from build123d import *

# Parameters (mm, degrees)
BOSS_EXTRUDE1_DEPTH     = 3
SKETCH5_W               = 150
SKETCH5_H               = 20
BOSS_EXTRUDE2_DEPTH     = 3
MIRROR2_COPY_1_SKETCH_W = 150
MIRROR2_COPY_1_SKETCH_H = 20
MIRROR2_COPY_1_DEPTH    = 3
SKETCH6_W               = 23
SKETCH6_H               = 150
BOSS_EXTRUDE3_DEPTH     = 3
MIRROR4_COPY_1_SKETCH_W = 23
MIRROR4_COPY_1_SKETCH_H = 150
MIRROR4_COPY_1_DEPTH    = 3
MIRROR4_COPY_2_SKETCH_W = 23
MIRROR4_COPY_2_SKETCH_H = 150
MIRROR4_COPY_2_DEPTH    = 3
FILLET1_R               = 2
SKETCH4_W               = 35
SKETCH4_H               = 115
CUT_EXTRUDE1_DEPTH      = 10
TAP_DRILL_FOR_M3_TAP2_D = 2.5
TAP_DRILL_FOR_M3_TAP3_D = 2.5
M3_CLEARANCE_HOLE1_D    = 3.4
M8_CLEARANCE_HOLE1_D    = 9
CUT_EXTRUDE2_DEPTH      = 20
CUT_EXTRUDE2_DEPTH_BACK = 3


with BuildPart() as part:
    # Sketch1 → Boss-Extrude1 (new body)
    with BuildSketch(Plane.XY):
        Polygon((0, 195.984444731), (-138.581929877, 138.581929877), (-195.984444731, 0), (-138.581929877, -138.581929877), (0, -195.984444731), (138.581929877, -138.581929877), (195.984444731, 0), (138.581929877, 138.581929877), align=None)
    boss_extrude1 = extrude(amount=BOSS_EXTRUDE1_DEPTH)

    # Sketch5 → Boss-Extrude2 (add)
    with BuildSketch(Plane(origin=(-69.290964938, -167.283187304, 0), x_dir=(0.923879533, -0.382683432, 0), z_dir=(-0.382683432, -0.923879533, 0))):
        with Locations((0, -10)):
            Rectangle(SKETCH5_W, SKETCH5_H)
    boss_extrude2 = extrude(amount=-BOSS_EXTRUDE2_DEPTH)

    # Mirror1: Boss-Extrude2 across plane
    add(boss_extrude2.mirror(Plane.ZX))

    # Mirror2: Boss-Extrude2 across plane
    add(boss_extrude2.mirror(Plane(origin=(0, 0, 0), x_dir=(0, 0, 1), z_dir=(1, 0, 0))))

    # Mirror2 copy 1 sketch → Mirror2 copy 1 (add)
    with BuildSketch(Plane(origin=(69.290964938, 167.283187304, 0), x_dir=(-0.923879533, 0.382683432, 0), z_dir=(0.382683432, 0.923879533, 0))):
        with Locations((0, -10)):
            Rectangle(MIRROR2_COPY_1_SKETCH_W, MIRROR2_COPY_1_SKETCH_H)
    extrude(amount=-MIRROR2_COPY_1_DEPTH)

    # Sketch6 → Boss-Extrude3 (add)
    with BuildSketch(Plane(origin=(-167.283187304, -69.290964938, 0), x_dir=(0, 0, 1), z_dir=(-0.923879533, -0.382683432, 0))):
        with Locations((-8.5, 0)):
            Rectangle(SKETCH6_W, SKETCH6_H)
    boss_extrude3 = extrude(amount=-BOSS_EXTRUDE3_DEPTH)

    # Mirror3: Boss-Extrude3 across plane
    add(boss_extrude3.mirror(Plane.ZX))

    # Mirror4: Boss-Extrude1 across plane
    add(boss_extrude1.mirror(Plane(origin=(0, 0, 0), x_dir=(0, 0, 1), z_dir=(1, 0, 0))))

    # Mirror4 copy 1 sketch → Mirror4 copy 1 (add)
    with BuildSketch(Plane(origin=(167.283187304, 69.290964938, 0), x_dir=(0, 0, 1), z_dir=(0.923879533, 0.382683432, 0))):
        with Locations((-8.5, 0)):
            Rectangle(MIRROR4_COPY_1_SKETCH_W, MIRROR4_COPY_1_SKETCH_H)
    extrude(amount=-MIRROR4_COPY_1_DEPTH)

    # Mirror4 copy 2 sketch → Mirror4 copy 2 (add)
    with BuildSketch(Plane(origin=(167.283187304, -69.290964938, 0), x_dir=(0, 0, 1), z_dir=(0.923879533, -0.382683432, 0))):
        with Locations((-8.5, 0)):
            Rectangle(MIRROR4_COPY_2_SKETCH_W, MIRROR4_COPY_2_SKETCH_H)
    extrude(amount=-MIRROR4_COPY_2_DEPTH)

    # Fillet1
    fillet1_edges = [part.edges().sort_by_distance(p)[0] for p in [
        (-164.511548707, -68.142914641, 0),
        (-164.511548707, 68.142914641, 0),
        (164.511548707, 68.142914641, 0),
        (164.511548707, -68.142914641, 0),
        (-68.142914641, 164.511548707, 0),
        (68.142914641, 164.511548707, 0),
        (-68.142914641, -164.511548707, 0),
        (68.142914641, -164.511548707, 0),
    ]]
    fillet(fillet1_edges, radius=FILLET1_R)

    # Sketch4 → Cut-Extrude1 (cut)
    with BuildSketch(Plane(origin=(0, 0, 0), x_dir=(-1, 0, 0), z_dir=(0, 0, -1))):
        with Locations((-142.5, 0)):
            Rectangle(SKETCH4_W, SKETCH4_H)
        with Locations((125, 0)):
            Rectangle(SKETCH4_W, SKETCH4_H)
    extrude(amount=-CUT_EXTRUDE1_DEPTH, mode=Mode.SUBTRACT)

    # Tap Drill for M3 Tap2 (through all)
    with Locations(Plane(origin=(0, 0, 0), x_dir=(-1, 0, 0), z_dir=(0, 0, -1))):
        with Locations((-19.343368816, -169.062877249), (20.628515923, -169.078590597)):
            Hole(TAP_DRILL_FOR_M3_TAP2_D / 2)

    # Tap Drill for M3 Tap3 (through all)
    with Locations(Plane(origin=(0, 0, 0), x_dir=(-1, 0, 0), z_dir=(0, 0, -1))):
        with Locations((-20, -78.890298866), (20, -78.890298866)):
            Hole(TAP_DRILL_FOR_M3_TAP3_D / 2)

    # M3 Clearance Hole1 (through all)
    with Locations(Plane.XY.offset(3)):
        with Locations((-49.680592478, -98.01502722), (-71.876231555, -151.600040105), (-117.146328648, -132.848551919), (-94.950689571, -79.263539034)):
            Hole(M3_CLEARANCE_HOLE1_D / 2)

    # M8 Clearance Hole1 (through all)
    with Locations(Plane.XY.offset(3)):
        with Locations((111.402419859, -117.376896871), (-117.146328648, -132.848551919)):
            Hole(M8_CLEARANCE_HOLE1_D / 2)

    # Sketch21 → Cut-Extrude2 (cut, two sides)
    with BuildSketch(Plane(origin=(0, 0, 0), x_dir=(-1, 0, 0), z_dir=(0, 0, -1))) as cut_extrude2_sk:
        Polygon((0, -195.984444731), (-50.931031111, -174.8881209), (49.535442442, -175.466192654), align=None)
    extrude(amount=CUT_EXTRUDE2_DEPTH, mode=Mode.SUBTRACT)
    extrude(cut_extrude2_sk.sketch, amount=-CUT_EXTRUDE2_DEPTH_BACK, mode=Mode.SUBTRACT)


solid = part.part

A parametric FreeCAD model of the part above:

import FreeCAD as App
import Part
import Sketcher

V = App.Vector
Q = App.Units.Quantity


def edges_at(feature, points):
    """Names of the edges that pass closest to the given points."""
    edges = feature.Shape.Edges
    near = lambda p: min(range(len(edges)), key=lambda i: edges[i].distToShape(Part.Vertex(*p))[0])
    return sorted({f"Edge{near(p) + 1}" for p in points})

doc = App.newDocument("Part")
body = doc.addObject("PartDesign::Body", "Body")

sketch1 = body.newObject("Sketcher::SketchObject", "Sketch")
sketch1.AttachmentSupport = (doc.getObject("XY_Plane"), [""])
sketch1.MapMode = "FlatFace"
sketch1.addGeometry(Part.LineSegment(V(0, 196, 0), V(-139, 139, 0)), False)
sketch1.addGeometry(Part.LineSegment(V(-139, 139, 0), V(-196, 0, 0)), False)
sketch1.addGeometry(Part.LineSegment(V(-196, 0, 0), V(-139, -139, 0)), False)
sketch1.addGeometry(Part.LineSegment(V(-139, -139, 0), V(0, -196, 0)), False)
sketch1.addGeometry(Part.LineSegment(V(0, -196, 0), V(139, -139, 0)), False)
sketch1.addGeometry(Part.LineSegment(V(139, -139, 0), V(196, 0, 0)), False)
sketch1.addGeometry(Part.LineSegment(V(196, 0, 0), V(139, 139, 0)), False)
sketch1.addGeometry(Part.LineSegment(V(139, 139, 0), V(0, 196, 0)), False)
sketch1.addConstraint(Sketcher.Constraint("Coincident", 0, 2, 1, 1))
sketch1.addConstraint(Sketcher.Constraint("Coincident", 1, 2, 2, 1))
sketch1.addConstraint(Sketcher.Constraint("Coincident", 2, 2, 3, 1))
sketch1.addConstraint(Sketcher.Constraint("Coincident", 3, 2, 4, 1))
sketch1.addConstraint(Sketcher.Constraint("Coincident", 4, 2, 5, 1))
sketch1.addConstraint(Sketcher.Constraint("Coincident", 5, 2, 6, 1))
sketch1.addConstraint(Sketcher.Constraint("Coincident", 6, 2, 7, 1))
sketch1.addConstraint(Sketcher.Constraint("Coincident", 7, 2, 0, 1))
sketch1.addConstraint(Sketcher.Constraint("Symmetric", 0, 2, 4, 2, -1, 1))
sketch1.addConstraint(Sketcher.Constraint("Symmetric", 1, 2, 5, 2, -1, 1))
sketch1.addConstraint(Sketcher.Constraint("Symmetric", 2, 2, 6, 2, -1, 1))
sketch1.addConstraint(Sketcher.Constraint("Symmetric", 3, 2, 7, 2, -1, 1))
sketch1.addConstraint(Sketcher.Constraint("Symmetric", 2, 2, 4, 2, -2))
sketch1.addConstraint(Sketcher.Constraint("PointOnObject", 1, 2, -1))
sketch1.addConstraint(Sketcher.Constraint("PointOnObject", 3, 2, -2))
sketch1.addConstraint(Sketcher.Constraint("Perpendicular", 0, 2))
sketch1.addConstraint(Sketcher.Constraint("Equal", 0, 1))
sketch1.addConstraint(Sketcher.Constraint("Distance", 0, Q("150 mm")))
sketch1.addConstraint(Sketcher.Constraint("Angle", 0, Q("-157.5 deg")))
pad1 = body.newObject("PartDesign::Pad", "Pad")
pad1.Profile = sketch1
pad1.Length = 3

sketch2 = body.newObject("Sketcher::SketchObject", "Sketch001")
sketch2.Placement = App.Placement(V(-69.290965, -167.283187, 0), App.Rotation(V(0.923879533, -0.382683432, 0), V(0, 0, 1.000000001), V(-0.382683432, -0.923879533, 0), "ZXY"))
sketch2.addGeometry(Part.LineSegment(V(-75, 0, 0), V(-75, -20, 0)), False)
sketch2.addGeometry(Part.LineSegment(V(-75, -20, 0), V(75, -20, 0)), False)
sketch2.addGeometry(Part.LineSegment(V(75, -20, 0), V(75, 0, 0)), False)
sketch2.addGeometry(Part.LineSegment(V(75, 0, 0), V(-75, 0, 0)), False)
sketch2.addConstraint(Sketcher.Constraint("Coincident", 0, 2, 1, 1))
sketch2.addConstraint(Sketcher.Constraint("Coincident", 1, 2, 2, 1))
sketch2.addConstraint(Sketcher.Constraint("Coincident", 2, 2, 3, 1))
sketch2.addConstraint(Sketcher.Constraint("Coincident", 3, 2, 0, 1))
sketch2.addConstraint(Sketcher.Constraint("Vertical", 0))
sketch2.addConstraint(Sketcher.Constraint("Horizontal", 1))
sketch2.addConstraint(Sketcher.Constraint("Vertical", 2))
sketch2.addConstraint(Sketcher.Constraint("Horizontal", 3))
sketch2.addConstraint(Sketcher.Constraint("Symmetric", 2, 2, 3, 2, -1, 1))
sketch2.addConstraint(Sketcher.Constraint("DistanceX", 1, 1, 1, 2, Q("150 mm")))
sketch2.addConstraint(Sketcher.Constraint("DistanceY", 0, 2, 0, 1, Q("20 mm")))
pad2 = body.newObject("PartDesign::Pad", "Pad001")
pad2.Profile = sketch2
pad2.Length = 3
pad2.Reversed = True
doc.recompute()

mirrored = body.newObject("PartDesign::Mirrored", "Mirrored")
mirrored.Originals = [pad2]
mirrored.MirrorPlane = (doc.getObject("XZ_Plane"), [""])
body.Tip = mirrored
doc.recompute()

mirrored2 = body.newObject("PartDesign::Mirrored", "Mirrored001")
mirrored2.Originals = [pad2]
mirrored2.MirrorPlane = (doc.getObject("YZ_Plane"), [""])
body.Tip = mirrored2

sketch3 = body.newObject("Sketcher::SketchObject", "Sketch002")
sketch3.Placement = App.Placement(V(69.290965, 167.283187, 0), App.Rotation(V(-0.923879533, 0.382683432, 0), V(0, 0, 1.000000001), V(0.382683432, 0.923879533, 0), "ZXY"))
sketch3.addGeometry(Part.LineSegment(V(-75, 0, 0), V(-75, -20, 0)), False)
sketch3.addGeometry(Part.LineSegment(V(-75, -20, 0), V(75, -20, 0)), False)
sketch3.addGeometry(Part.LineSegment(V(75, -20, 0), V(75, 0, 0)), False)
sketch3.addGeometry(Part.LineSegment(V(75, 0, 0), V(-75, 0, 0)), False)
sketch3.addConstraint(Sketcher.Constraint("Coincident", 0, 2, 1, 1))
sketch3.addConstraint(Sketcher.Constraint("Coincident", 1, 2, 2, 1))
sketch3.addConstraint(Sketcher.Constraint("Coincident", 2, 2, 3, 1))
sketch3.addConstraint(Sketcher.Constraint("Coincident", 3, 2, 0, 1))
sketch3.addConstraint(Sketcher.Constraint("Vertical", 0))
sketch3.addConstraint(Sketcher.Constraint("Horizontal", 1))
sketch3.addConstraint(Sketcher.Constraint("Vertical", 2))
sketch3.addConstraint(Sketcher.Constraint("Horizontal", 3))
sketch3.addConstraint(Sketcher.Constraint("Symmetric", 2, 2, 3, 2, -1, 1))
sketch3.addConstraint(Sketcher.Constraint("DistanceX", 1, 1, 1, 2, Q("150 mm")))
sketch3.addConstraint(Sketcher.Constraint("DistanceY", 0, 2, 0, 1, Q("20 mm")))
pad3 = body.newObject("PartDesign::Pad", "Pad002")
pad3.Profile = sketch3
pad3.Length = 3
pad3.Reversed = True

sketch4 = body.newObject("Sketcher::SketchObject", "Sketch003")
sketch4.Placement = App.Placement(V(-167.283187, -69.290965, 0), App.Rotation(V(0, 0, 1), V(-0.382683432, 0.923879533, 0), V(-0.923879533, -0.382683432, 0), "ZXY"))
sketch4.addGeometry(Part.LineSegment(V(-20, 75, 0), V(-20, -75, 0)), False)
sketch4.addGeometry(Part.LineSegment(V(-20, -75, 0), V(3, -75, 0)), False)
sketch4.addGeometry(Part.LineSegment(V(3, -75, 0), V(3, 75, 0)), False)
sketch4.addGeometry(Part.LineSegment(V(3, 75, 0), V(-20, 75, 0)), False)
sketch4.addConstraint(Sketcher.Constraint("Coincident", 0, 2, 1, 1))
sketch4.addConstraint(Sketcher.Constraint("Coincident", 1, 2, 2, 1))
sketch4.addConstraint(Sketcher.Constraint("Coincident", 2, 2, 3, 1))
sketch4.addConstraint(Sketcher.Constraint("Coincident", 3, 2, 0, 1))
sketch4.addConstraint(Sketcher.Constraint("Vertical", 0))
sketch4.addConstraint(Sketcher.Constraint("Horizontal", 1))
sketch4.addConstraint(Sketcher.Constraint("Vertical", 2))
sketch4.addConstraint(Sketcher.Constraint("Horizontal", 3))
sketch4.addConstraint(Sketcher.Constraint("DistanceX", 1, 1, 1, 2, Q("23 mm")))
sketch4.addConstraint(Sketcher.Constraint("DistanceY", 0, 2, 0, 1, Q("150 mm")))
sketch4.addConstraint(Sketcher.Constraint("DistanceX", 0, 2, -1, 1, Q("20 mm")))
sketch4.addConstraint(Sketcher.Constraint("DistanceY", 0, 2, -1, 1, Q("75 mm")))
pad4 = body.newObject("PartDesign::Pad", "Pad003")
pad4.Profile = sketch4
pad4.Length = 3
pad4.Reversed = True
doc.recompute()

mirrored3 = body.newObject("PartDesign::Mirrored", "Mirrored002")
mirrored3.Originals = [pad4]
mirrored3.MirrorPlane = (doc.getObject("XZ_Plane"), [""])
body.Tip = mirrored3
doc.recompute()

mirrored4 = body.newObject("PartDesign::Mirrored", "Mirrored003")
mirrored4.Originals = [pad1]
mirrored4.MirrorPlane = (doc.getObject("YZ_Plane"), [""])
body.Tip = mirrored4

sketch5 = body.newObject("Sketcher::SketchObject", "Sketch004")
sketch5.Placement = App.Placement(V(167.283187, 69.290965, 0), App.Rotation(V(0, 0, 1), V(0.382683432, -0.923879533, 0), V(0.923879533, 0.382683432, 0), "ZXY"))
sketch5.addGeometry(Part.LineSegment(V(-20, 75, 0), V(-20, -75, 0)), False)
sketch5.addGeometry(Part.LineSegment(V(-20, -75, 0), V(3, -75, 0)), False)
sketch5.addGeometry(Part.LineSegment(V(3, -75, 0), V(3, 75, 0)), False)
sketch5.addGeometry(Part.LineSegment(V(3, 75, 0), V(-20, 75, 0)), False)
sketch5.addConstraint(Sketcher.Constraint("Coincident", 0, 2, 1, 1))
sketch5.addConstraint(Sketcher.Constraint("Coincident", 1, 2, 2, 1))
sketch5.addConstraint(Sketcher.Constraint("Coincident", 2, 2, 3, 1))
sketch5.addConstraint(Sketcher.Constraint("Coincident", 3, 2, 0, 1))
sketch5.addConstraint(Sketcher.Constraint("Vertical", 0))
sketch5.addConstraint(Sketcher.Constraint("Horizontal", 1))
sketch5.addConstraint(Sketcher.Constraint("Vertical", 2))
sketch5.addConstraint(Sketcher.Constraint("Horizontal", 3))
sketch5.addConstraint(Sketcher.Constraint("DistanceX", 1, 1, 1, 2, Q("23 mm")))
sketch5.addConstraint(Sketcher.Constraint("DistanceY", 0, 2, 0, 1, Q("150 mm")))
sketch5.addConstraint(Sketcher.Constraint("DistanceX", 0, 2, -1, 1, Q("20 mm")))
sketch5.addConstraint(Sketcher.Constraint("DistanceY", 0, 2, -1, 1, Q("75 mm")))
pad5 = body.newObject("PartDesign::Pad", "Pad004")
pad5.Profile = sketch5
pad5.Length = 3
pad5.Reversed = True

sketch6 = body.newObject("Sketcher::SketchObject", "Sketch005")
sketch6.Placement = App.Placement(V(167.283187, -69.290965, 0), App.Rotation(V(0, 0, 1), V(-0.382683432, -0.923879533, 0), V(0.923879533, -0.382683432, 0), "ZXY"))
sketch6.addGeometry(Part.LineSegment(V(-20, 75, 0), V(-20, -75, 0)), False)
sketch6.addGeometry(Part.LineSegment(V(-20, -75, 0), V(3, -75, 0)), False)
sketch6.addGeometry(Part.LineSegment(V(3, -75, 0), V(3, 75, 0)), False)
sketch6.addGeometry(Part.LineSegment(V(3, 75, 0), V(-20, 75, 0)), False)
sketch6.addConstraint(Sketcher.Constraint("Coincident", 0, 2, 1, 1))
sketch6.addConstraint(Sketcher.Constraint("Coincident", 1, 2, 2, 1))
sketch6.addConstraint(Sketcher.Constraint("Coincident", 2, 2, 3, 1))
sketch6.addConstraint(Sketcher.Constraint("Coincident", 3, 2, 0, 1))
sketch6.addConstraint(Sketcher.Constraint("Vertical", 0))
sketch6.addConstraint(Sketcher.Constraint("Horizontal", 1))
sketch6.addConstraint(Sketcher.Constraint("Vertical", 2))
sketch6.addConstraint(Sketcher.Constraint("Horizontal", 3))
sketch6.addConstraint(Sketcher.Constraint("DistanceX", 1, 1, 1, 2, Q("23 mm")))
sketch6.addConstraint(Sketcher.Constraint("DistanceY", 0, 2, 0, 1, Q("150 mm")))
sketch6.addConstraint(Sketcher.Constraint("DistanceX", 0, 2, -1, 1, Q("20 mm")))
sketch6.addConstraint(Sketcher.Constraint("DistanceY", 0, 2, -1, 1, Q("75 mm")))
pad6 = body.newObject("PartDesign::Pad", "Pad005")
pad6.Profile = sketch6
pad6.Length = 3
pad6.Reversed = True
doc.recompute()

fillet = body.newObject("PartDesign::Fillet", "Fillet")
fillet.Base = (pad6, edges_at(pad6, [
    (-164.512, -68.143, 0),
    (-164.512, 68.143, 0),
    (164.512, 68.143, 0),
    (164.512, -68.143, 0),
    (-68.143, 164.512, 0),
    (68.143, 164.512, 0),
    (-68.143, -164.512, 0),
    (68.143, -164.512, 0),
]))
fillet.Radius = 2

sketch7 = body.newObject("Sketcher::SketchObject", "Sketch006")
sketch7.AttachmentSupport = (doc.getObject("XY_Plane"), [""])
sketch7.MapMode = "FlatFace"
sketch7.addGeometry(Part.LineSegment(V(160, 58, 0), V(160, -58, 0)), False)
sketch7.addGeometry(Part.LineSegment(V(160, -58, 0), V(125, -58, 0)), False)
sketch7.addGeometry(Part.LineSegment(V(125, -58, 0), V(125, 58, 0)), False)
sketch7.addGeometry(Part.LineSegment(V(125, 58, 0), V(160, 58, 0)), False)
sketch7.addGeometry(Part.LineSegment(V(-108, 58, 0), V(-108, -58, 0)), False)
sketch7.addGeometry(Part.LineSegment(V(-108, -58, 0), V(-142, -58, 0)), False)
sketch7.addGeometry(Part.LineSegment(V(-142, -58, 0), V(-142, 58, 0)), False)
sketch7.addGeometry(Part.LineSegment(V(-142, 58, 0), V(-108, 58, 0)), False)
sketch7.addConstraint(Sketcher.Constraint("Coincident", 0, 2, 1, 1))
sketch7.addConstraint(Sketcher.Constraint("Coincident", 1, 2, 2, 1))
sketch7.addConstraint(Sketcher.Constraint("Coincident", 2, 2, 3, 1))
sketch7.addConstraint(Sketcher.Constraint("Coincident", 3, 2, 0, 1))
sketch7.addConstraint(Sketcher.Constraint("Coincident", 4, 2, 5, 1))
sketch7.addConstraint(Sketcher.Constraint("Coincident", 5, 2, 6, 1))
sketch7.addConstraint(Sketcher.Constraint("Coincident", 6, 2, 7, 1))
sketch7.addConstraint(Sketcher.Constraint("Coincident", 7, 2, 4, 1))
sketch7.addConstraint(Sketcher.Constraint("Vertical", 0))
sketch7.addConstraint(Sketcher.Constraint("Horizontal", 1))
sketch7.addConstraint(Sketcher.Constraint("Vertical", 2))
sketch7.addConstraint(Sketcher.Constraint("Horizontal", 3))
sketch7.addConstraint(Sketcher.Constraint("Vertical", 4))
sketch7.addConstraint(Sketcher.Constraint("Horizontal", 5))
sketch7.addConstraint(Sketcher.Constraint("Vertical", 6))
sketch7.addConstraint(Sketcher.Constraint("Horizontal", 7))
sketch7.addConstraint(Sketcher.Constraint("Horizontal", 1, 2, 4, 2))
sketch7.addConstraint(Sketcher.Constraint("Horizontal", 3, 2, 6, 2))
sketch7.addConstraint(Sketcher.Constraint("Equal", 3, 5))
sketch7.addConstraint(Sketcher.Constraint("DistanceX", 1, 2, 1, 1, Q("35 mm")))
sketch7.addConstraint(Sketcher.Constraint("DistanceY", 0, 2, 0, 1, Q("115 mm")))
sketch7.addConstraint(Sketcher.Constraint("DistanceX", -1, 1, 0, 2, Q("160 mm")))
sketch7.addConstraint(Sketcher.Constraint("DistanceY", 0, 2, -1, 1, Q("57.5 mm")))
sketch7.addConstraint(Sketcher.Constraint("DistanceX", 4, 2, -1, 1, Q("107.5 mm")))
pocket1 = body.newObject("PartDesign::Pocket", "Pocket")
pocket1.Profile = sketch7
pocket1.Length = 10
pocket1.Reversed = True

sketch8 = body.newObject("Sketcher::SketchObject", "Sketch007")
sketch8.AttachmentSupport = (doc.getObject("XY_Plane"), [""])
sketch8.MapMode = "FlatFace"
sketch8.addGeometry(Part.Circle(V(19.3, -169.1, 0), V(0, 0, 1), 1.2), False)
sketch8.addGeometry(Part.Circle(V(-20.6, -169.1, 0), V(0, 0, 1), 1.2), False)
sketch8.addConstraint(Sketcher.Constraint("Equal", 0, 1))
sketch8.addConstraint(Sketcher.Constraint("Diameter", 0, Q("2.5 mm")))
sketch8.addConstraint(Sketcher.Constraint("DistanceX", -1, 1, 0, 3, Q("19.343369 mm")))
sketch8.addConstraint(Sketcher.Constraint("DistanceY", 1, 3, -1, 1, Q("169.078591 mm")))
sketch8.addConstraint(Sketcher.Constraint("DistanceY", 0, 3, -1, 1, Q("169.062877 mm")))
sketch8.addConstraint(Sketcher.Constraint("DistanceX", 1, 3, -1, 1, Q("20.628516 mm")))
doc.recompute()
hole = body.newObject("PartDesign::Hole", "Hole")
hole.Profile = sketch8
hole.ThreadType = "None"
hole.Diameter = 2.5
hole.DepthType = "ThroughAll"
hole.Reversed = True

sketch9 = body.newObject("Sketcher::SketchObject", "Sketch008")
sketch9.AttachmentSupport = (doc.getObject("XY_Plane"), [""])
sketch9.MapMode = "FlatFace"
sketch9.addGeometry(Part.Circle(V(20, -78.9, 0), V(0, 0, 1), 1.2), False)
sketch9.addGeometry(Part.Circle(V(-20, -78.9, 0), V(0, 0, 1), 1.2), False)
sketch9.addConstraint(Sketcher.Constraint("Equal", 0, 1))
sketch9.addConstraint(Sketcher.Constraint("Symmetric", 0, 3, 1, 3, -2))
sketch9.addConstraint(Sketcher.Constraint("Diameter", 0, Q("2.5 mm")))
sketch9.addConstraint(Sketcher.Constraint("DistanceX", -1, 1, 0, 3, Q("20 mm")))
sketch9.addConstraint(Sketcher.Constraint("DistanceY", 0, 3, -1, 1, Q("78.890299 mm")))
doc.recompute()
hole2 = body.newObject("PartDesign::Hole", "Hole001")
hole2.Profile = sketch9
hole2.ThreadType = "None"
hole2.Diameter = 2.5
hole2.DepthType = "ThroughAll"
hole2.Reversed = True

sketch10 = body.newObject("Sketcher::SketchObject", "Sketch009")
sketch10.AttachmentSupport = (doc.getObject("XY_Plane"), [""])
sketch10.MapMode = "FlatFace"
sketch10.AttachmentOffset = App.Placement(V(0, 0, 3), App.Rotation())
sketch10.addGeometry(Part.Circle(V(-49.7, -98, 0), V(0, 0, 1), 1.7), False)
sketch10.addGeometry(Part.Circle(V(-71.9, -151.6, 0), V(0, 0, 1), 1.7), False)
sketch10.addGeometry(Part.Circle(V(-117.1, -132.8, 0), V(0, 0, 1), 1.7), False)
sketch10.addGeometry(Part.Circle(V(-95, -79.3, 0), V(0, 0, 1), 1.7), False)
sketch10.addConstraint(Sketcher.Constraint("Equal", 0, 1))
sketch10.addConstraint(Sketcher.Constraint("Equal", 1, 2))
sketch10.addConstraint(Sketcher.Constraint("Equal", 2, 3))
sketch10.addConstraint(Sketcher.Constraint("Diameter", 0, Q("3.4 mm")))
sketch10.addConstraint(Sketcher.Constraint("DistanceY", 1, 3, 3, 3, Q("72.336501 mm")))
sketch10.addConstraint(Sketcher.Constraint("DistanceX", 1, 3, -1, 1, Q("71.876232 mm")))
sketch10.addConstraint(Sketcher.Constraint("DistanceY", 1, 3, -1, 1, Q("151.60004 mm")))
sketch10.addConstraint(Sketcher.Constraint("DistanceX", 2, 3, -1, 1, Q("117.146329 mm")))
sketch10.addConstraint(Sketcher.Constraint("DistanceY", 2, 3, -1, 1, Q("132.848552 mm")))
sketch10.addConstraint(Sketcher.Constraint("DistanceX", 3, 3, -1, 1, Q("94.95069 mm")))
sketch10.addConstraint(Sketcher.Constraint("DistanceX", 1, 3, 0, 3, Q("22.195639 mm")))
sketch10.addConstraint(Sketcher.Constraint("DistanceY", 0, 3, 3, 3, Q("18.751488 mm")))
doc.recompute()
hole3 = body.newObject("PartDesign::Hole", "Hole002")
hole3.Profile = sketch10
hole3.ThreadType = "None"
hole3.Diameter = 3.4
hole3.DepthType = "ThroughAll"

sketch11 = body.newObject("Sketcher::SketchObject", "Sketch010")
sketch11.AttachmentSupport = (doc.getObject("XY_Plane"), [""])
sketch11.MapMode = "FlatFace"
sketch11.AttachmentOffset = App.Placement(V(0, 0, 3), App.Rotation())
sketch11.addGeometry(Part.Circle(V(111.4, -117.4, 0), V(0, 0, 1), 4.5), False)
sketch11.addGeometry(Part.Circle(V(-117.1, -132.8, 0), V(0, 0, 1), 4.5), False)
sketch11.addConstraint(Sketcher.Constraint("Equal", 0, 1))
sketch11.addConstraint(Sketcher.Constraint("Diameter", 0, Q("9 mm")))
sketch11.addConstraint(Sketcher.Constraint("DistanceX", -1, 1, 0, 3, Q("111.40242 mm")))
sketch11.addConstraint(Sketcher.Constraint("DistanceX", 1, 3, -1, 1, Q("117.146329 mm")))
sketch11.addConstraint(Sketcher.Constraint("DistanceY", 1, 3, -1, 1, Q("132.848552 mm")))
sketch11.addConstraint(Sketcher.Constraint("DistanceY", 0, 3, -1, 1, Q("117.376897 mm")))
doc.recompute()
hole4 = body.newObject("PartDesign::Hole", "Hole003")
hole4.Profile = sketch11
hole4.ThreadType = "None"
hole4.Diameter = 9
hole4.DepthType = "ThroughAll"

sketch12 = body.newObject("Sketcher::SketchObject", "Sketch011")
sketch12.AttachmentSupport = (doc.getObject("XY_Plane"), [""])
sketch12.MapMode = "FlatFace"
sketch12.addGeometry(Part.LineSegment(V(51, -175, 0), V(0, -196, 0)), False)
sketch12.addGeometry(Part.LineSegment(V(0, -196, 0), V(-50, -175, 0)), False)
sketch12.addGeometry(Part.LineSegment(V(-50, -175, 0), V(51, -175, 0)), False)
sketch12.addConstraint(Sketcher.Constraint("Coincident", 0, 2, 1, 1))
sketch12.addConstraint(Sketcher.Constraint("Coincident", 1, 2, 2, 1))
sketch12.addConstraint(Sketcher.Constraint("Coincident", 2, 2, 0, 1))
sketch12.addConstraint(Sketcher.Constraint("PointOnObject", 0, 2, -2))
sketch12.addConstraint(Sketcher.Constraint("Angle", 0, Q("-157.5 deg")))
sketch12.addConstraint(Sketcher.Constraint("Angle", 1, Q("157.5 deg")))
sketch12.addConstraint(Sketcher.Constraint("Distance", 0, Q("55.127351 mm")))
sketch12.addConstraint(Sketcher.Constraint("DistanceY", 2, 2, -1, 1, Q("174.888121 mm")))
sketch12.addConstraint(Sketcher.Constraint("DistanceY", 1, 2, 2, 2, Q("0.578072 mm")))
pocket2 = body.newObject("PartDesign::Pocket", "Pocket001")
pocket2.Profile = sketch12
pocket2.Type = "ThroughAll"
pocket2.Midplane = True

doc.recompute()
